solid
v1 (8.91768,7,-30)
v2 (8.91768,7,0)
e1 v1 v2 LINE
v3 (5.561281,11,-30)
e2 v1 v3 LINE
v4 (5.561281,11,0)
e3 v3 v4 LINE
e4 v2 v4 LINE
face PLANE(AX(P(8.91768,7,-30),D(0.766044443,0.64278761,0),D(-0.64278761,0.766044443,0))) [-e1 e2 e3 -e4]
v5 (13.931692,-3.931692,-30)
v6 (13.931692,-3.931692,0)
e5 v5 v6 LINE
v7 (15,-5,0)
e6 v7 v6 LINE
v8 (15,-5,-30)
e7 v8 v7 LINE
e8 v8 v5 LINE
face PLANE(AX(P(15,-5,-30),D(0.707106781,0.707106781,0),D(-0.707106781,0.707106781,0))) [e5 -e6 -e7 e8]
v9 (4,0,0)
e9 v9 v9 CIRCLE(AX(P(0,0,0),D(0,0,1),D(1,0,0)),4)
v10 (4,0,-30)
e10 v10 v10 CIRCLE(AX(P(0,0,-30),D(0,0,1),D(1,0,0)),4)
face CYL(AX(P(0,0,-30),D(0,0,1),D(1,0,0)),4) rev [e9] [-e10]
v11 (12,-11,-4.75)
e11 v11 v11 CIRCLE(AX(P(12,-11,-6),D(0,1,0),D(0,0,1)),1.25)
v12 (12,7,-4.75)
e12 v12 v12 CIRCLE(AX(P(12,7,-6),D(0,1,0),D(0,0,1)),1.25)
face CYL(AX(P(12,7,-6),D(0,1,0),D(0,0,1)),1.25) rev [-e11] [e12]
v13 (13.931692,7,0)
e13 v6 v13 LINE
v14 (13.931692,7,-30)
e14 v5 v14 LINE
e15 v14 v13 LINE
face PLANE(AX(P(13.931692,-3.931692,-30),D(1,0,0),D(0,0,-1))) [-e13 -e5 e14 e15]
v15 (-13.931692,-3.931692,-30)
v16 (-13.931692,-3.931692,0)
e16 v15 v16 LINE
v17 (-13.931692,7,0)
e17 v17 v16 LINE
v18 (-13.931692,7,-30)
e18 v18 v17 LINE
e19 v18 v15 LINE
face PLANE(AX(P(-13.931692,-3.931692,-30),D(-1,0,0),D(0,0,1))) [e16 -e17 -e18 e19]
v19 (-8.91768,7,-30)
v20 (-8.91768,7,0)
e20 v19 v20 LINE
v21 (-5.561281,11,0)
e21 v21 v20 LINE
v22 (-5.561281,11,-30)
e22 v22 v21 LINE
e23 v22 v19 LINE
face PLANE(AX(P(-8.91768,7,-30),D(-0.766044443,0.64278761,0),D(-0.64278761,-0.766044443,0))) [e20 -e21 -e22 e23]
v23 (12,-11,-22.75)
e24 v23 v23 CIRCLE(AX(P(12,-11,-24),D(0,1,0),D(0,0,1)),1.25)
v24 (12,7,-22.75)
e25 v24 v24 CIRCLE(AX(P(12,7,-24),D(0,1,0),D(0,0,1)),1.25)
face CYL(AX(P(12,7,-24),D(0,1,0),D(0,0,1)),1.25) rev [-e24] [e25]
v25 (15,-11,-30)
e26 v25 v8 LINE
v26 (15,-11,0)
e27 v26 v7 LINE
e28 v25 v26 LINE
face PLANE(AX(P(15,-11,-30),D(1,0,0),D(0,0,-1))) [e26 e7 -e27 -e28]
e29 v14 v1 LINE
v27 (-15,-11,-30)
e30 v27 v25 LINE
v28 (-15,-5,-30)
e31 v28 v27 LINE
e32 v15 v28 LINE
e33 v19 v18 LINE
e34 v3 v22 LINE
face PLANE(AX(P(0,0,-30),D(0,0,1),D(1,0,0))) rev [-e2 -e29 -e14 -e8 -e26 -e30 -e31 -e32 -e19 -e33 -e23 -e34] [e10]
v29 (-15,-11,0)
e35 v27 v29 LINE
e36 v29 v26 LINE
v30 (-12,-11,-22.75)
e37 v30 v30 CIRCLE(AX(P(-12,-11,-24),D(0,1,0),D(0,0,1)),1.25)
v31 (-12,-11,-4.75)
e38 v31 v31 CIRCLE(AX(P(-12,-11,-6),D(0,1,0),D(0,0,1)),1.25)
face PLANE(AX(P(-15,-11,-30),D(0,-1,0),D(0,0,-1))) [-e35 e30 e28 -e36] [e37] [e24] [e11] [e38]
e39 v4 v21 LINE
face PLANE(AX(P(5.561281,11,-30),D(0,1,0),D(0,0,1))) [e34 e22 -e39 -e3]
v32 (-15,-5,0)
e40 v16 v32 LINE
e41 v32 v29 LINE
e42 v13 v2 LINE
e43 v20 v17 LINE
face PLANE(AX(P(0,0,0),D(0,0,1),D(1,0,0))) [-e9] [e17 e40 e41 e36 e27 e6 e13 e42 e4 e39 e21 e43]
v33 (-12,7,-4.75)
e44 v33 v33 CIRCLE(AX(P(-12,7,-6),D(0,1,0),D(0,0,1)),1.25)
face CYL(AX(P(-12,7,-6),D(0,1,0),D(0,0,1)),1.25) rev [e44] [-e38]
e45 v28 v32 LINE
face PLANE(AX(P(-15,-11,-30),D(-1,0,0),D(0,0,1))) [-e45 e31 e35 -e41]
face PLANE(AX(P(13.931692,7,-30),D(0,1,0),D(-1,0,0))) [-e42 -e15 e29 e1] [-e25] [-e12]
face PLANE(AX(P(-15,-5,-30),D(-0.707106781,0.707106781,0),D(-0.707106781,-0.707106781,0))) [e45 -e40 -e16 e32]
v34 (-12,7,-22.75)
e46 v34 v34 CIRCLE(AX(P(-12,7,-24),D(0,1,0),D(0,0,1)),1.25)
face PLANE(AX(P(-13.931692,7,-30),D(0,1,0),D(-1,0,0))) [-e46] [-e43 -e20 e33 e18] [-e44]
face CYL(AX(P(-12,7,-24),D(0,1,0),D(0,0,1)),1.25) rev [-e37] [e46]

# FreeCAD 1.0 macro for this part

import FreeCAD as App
import Part
import Sketcher
Q = App.Units.Quantity

doc = App.newDocument("Part")
body = doc.addObject("PartDesign::Body", "Body")

sketch1 = body.newObject("Sketcher::SketchObject", "Sketch")
sketch1.AttachmentSupport = (doc.getObject("XY_Plane"), [""])
sketch1.MapMode = "FlatFace"
sketch1.addGeometry([
    Part.LineSegment(App.Vector(-15, -11, 0), App.Vector(15, -11, 0)),
    Part.LineSegment(App.Vector(15, -11, 0), App.Vector(15, -5, 0)),
    Part.LineSegment(App.Vector(15, -5, 0), App.Vector(13.931692, -3.931692, 0)),
    Part.LineSegment(App.Vector(13.931692, -3.931692, 0), App.Vector(13.931692, 7, 0)),
    Part.LineSegment(App.Vector(13.931692, 7, 0), App.Vector(8.91768, 7, 0)),
    Part.LineSegment(App.Vector(8.91768, 7, 0), App.Vector(5.561281, 11, 0)),
    Part.LineSegment(App.Vector(5.561281, 11, 0), App.Vector(-5.561281, 11, 0)),
    Part.LineSegment(App.Vector(-5.561281, 11, 0), App.Vector(-8.91768, 7, 0)),
    Part.LineSegment(App.Vector(-8.91768, 7, 0), App.Vector(-13.931692, 7, 0)),
    Part.LineSegment(App.Vector(-13.931692, 7, 0), App.Vector(-13.931692, -3.931692, 0)),
    Part.LineSegment(App.Vector(-13.931692, -3.931692, 0), App.Vector(-15, -5, 0)),
    Part.LineSegment(App.Vector(-15, -5, 0), App.Vector(-15, -11, 0)),
    Part.Circle(App.Vector(0, 0, 0), App.Vector(0, 0, 1), 4),
], False)
sketch1.addConstraint([
    Sketcher.Constraint("Coincident", 0, 2, 1, 1),
    Sketcher.Constraint("Coincident", 1, 2, 2, 1),
    Sketcher.Constraint("Coincident", 2, 2, 3, 1),
    Sketcher.Constraint("Coincident", 3, 2, 4, 1),
    Sketcher.Constraint("Coincident", 4, 2, 5, 1),
    Sketcher.Constraint("Coincident", 5, 2, 6, 1),
    Sketcher.Constraint("Coincident", 6, 2, 7, 1),
    Sketcher.Constraint("Coincident", 7, 2, 8, 1),
    Sketcher.Constraint("Coincident", 8, 2, 9, 1),
    Sketcher.Constraint("Coincident", 9, 2, 10, 1),
    Sketcher.Constraint("Coincident", 10, 2, 11, 1),
    Sketcher.Constraint("Coincident", 11, 2, 0, 1),
    Sketcher.Constraint("Horizontal", 0),
    Sketcher.Constraint("Vertical", 1),
    Sketcher.Constraint("Vertical", 3),
    Sketcher.Constraint("Horizontal", 4),
    Sketcher.Constraint("Horizontal", 6),
    Sketcher.Constraint("Horizontal", 8),
    Sketcher.Constraint("Vertical", 9),
    Sketcher.Constraint("Vertical", 11),
    Sketcher.Constraint("Coincident", 12, 3, -1, 1),
    Sketcher.Constraint("Symmetric", 4, 2, 7, 2, -2),
    Sketcher.Constraint("Symmetric", 2, 2, 9, 2, -2),
    Sketcher.Constraint("Symmetric", 1, 2, 10, 2, -2),
    Sketcher.Constraint("Perpendicular", 2, 10),
    Sketcher.Constraint("Equal", 5, 7),
    Sketcher.Constraint("Diameter", 12, 8.0),
    Sketcher.Constraint("DistanceX", 0, 1, 0, 2, 30.0),
    Sketcher.Constraint("DistanceY", 1, 1, 1, 2, 6.0),
    Sketcher.Constraint("Angle", 5, Q("130 deg")),
    Sketcher.Constraint("DistanceY", 0, 2, -1, 1, 11.0),
    Sketcher.Constraint("DistanceY", -1, 1, 3, 2, 7.0),
    Sketcher.Constraint("DistanceY", -1, 1, 5, 2, 11.0),
    Sketcher.Constraint("DistanceX", 4, 2, 4, 1, 5.014012),
    Sketcher.Constraint("DistanceY", 3, 1, 3, 2, 10.931692),
])
pad1 = body.newObject("PartDesign::Pad", "Pad")
pad1.Profile = sketch1
pad1.Length = 30
pad1.Reversed = True

sketch2 = body.newObject("Sketcher::SketchObject", "Sketch001")
sketch2.AttachmentSupport = (doc.getObject("XZ_Plane"), [""])
sketch2.MapMode = "FlatFace"
sketch2.AttachmentOffset = App.Placement(App.Vector(0, 0, -7), App.Rotation())
sketch2.addGeometry([
    Part.Circle(App.Vector(-12, -24, 0), App.Vector(0, 0, 1), 1.25),
    Part.Circle(App.Vector(-12, -6, 0), App.Vector(0, 0, 1), 1.25),
    Part.Circle(App.Vector(12, -6, 0), App.Vector(0, 0, 1), 1.25),
    Part.Circle(App.Vector(12, -24, 0), App.Vector(0, 0, 1), 1.25),
], False)
sketch2.addConstraint([
    Sketcher.Constraint("Equal", 0, 1),
    Sketcher.Constraint("Equal", 1, 2),
    Sketcher.Constraint("Equal", 2, 3),
    Sketcher.Constraint("Symmetric", 1, 3, 2, 3, -2),
    Sketcher.Constraint("Symmetric", 0, 3, 3, 3, -2),
    Sketcher.Constraint("Vertical", 0, 3, 1, 3),
    Sketcher.Constraint("Diameter", 0, 2.5),
    Sketcher.Constraint("DistanceX", 0, 3, -1, 1, 12.0),
    Sketcher.Constraint("DistanceY", 0, 3, -1, 1, 24.0),
    Sketcher.Constraint("DistanceY", 1, 3, -1, 1, 6.0),
])
doc.recompute()
hole = body.newObject("PartDesign::Hole", "Hole")
hole.Profile = sketch2
hole.ThreadType = "None"
hole.Diameter = 2.5
hole.DepthType = "ThroughAll"
hole.Reversed = True

doc.recompute()
